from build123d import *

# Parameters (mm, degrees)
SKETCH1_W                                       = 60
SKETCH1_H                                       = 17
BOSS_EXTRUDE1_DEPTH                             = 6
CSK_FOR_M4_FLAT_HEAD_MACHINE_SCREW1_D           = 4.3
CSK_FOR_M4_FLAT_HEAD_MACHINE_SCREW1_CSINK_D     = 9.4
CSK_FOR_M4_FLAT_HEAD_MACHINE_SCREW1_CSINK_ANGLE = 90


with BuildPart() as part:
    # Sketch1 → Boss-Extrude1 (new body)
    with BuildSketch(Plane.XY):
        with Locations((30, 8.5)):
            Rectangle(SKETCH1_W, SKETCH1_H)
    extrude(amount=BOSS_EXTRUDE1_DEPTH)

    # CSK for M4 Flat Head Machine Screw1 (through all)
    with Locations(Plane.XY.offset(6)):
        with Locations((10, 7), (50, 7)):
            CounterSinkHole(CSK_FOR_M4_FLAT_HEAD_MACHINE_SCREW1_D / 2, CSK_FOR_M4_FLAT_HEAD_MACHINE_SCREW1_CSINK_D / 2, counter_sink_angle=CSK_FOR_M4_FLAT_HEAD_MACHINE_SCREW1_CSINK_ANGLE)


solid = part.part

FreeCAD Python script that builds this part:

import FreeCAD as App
import Part
import Sketcher

V = App.Vector
Q = App.Units.Quantity

doc = App.newDocument("Part")
body = doc.addObject("PartDesign::Body", "Body")

# Sketch on XY plane
sketch1 = doc.addObject("Sketcher::SketchObject", "Sketch")
body.addObject(sketch1)
sketch1.AttachmentSupport = (doc.XY_Plane, [""])
sketch1.MapMode = "FlatFace"
sketch1.addGeometry(Part.LineSegment(V(0, 17, 0), V(0, 0, 0)), False)
sketch1.addGeometry(Part.LineSegment(V(0, 0, 0), V(60, 0, 0)), False)
sketch1.addGeometry(Part.LineSegment(V(60, 0, 0), V(60, 17, 0)), False)
sketch1.addGeometry(Part.LineSegment(V(60, 17, 0), V(0, 17, 0)), False)
sketch1.addConstraint(Sketcher.Constraint("Coincident", 0, 2, 1, 1))
sketch1.addConstraint(Sketcher.Constraint("Coincident", 1, 2, 2, 1))
sketch1.addConstraint(Sketcher.Constraint("Coincident", 2, 2, 3, 1))
sketch1.addConstraint(Sketcher.Constraint("Coincident", 3, 2, 0, 1))
sketch1.addConstraint(Sketcher.Constraint("Vertical", 0))
sketch1.addConstraint(Sketcher.Constraint("Horizontal", 1))
sketch1.addConstraint(Sketcher.Constraint("Vertical", 2))
sketch1.addConstraint(Sketcher.Constraint("Horizontal", 3))
sketch1.addConstraint(Sketcher.Constraint("Coincident", 0, 2, -1, 1))
sketch1.addConstraint(Sketcher.Constraint("DistanceX", 1, 1, 1, 2, Q("60 mm")))
sketch1.addConstraint(Sketcher.Constraint("DistanceY", 0, 2, 0, 1, Q("17 mm")))
pad1 = doc.addObject("PartDesign::Pad", "Pad")
body.addObject(pad1)
pad1.Profile = sketch1
pad1.Length = 6

# Sketch on XY plane
sketch2 = doc.addObject("Sketcher::SketchObject", "Sketch001")
body.addObject(sketch2)
sketch2.AttachmentSupport = (doc.XY_Plane, [""])
sketch2.MapMode = "FlatFace"
sketch2.AttachmentOffset = App.Placement(V(0, 0, 6), App.Rotation())
sketch2.addGeometry(Part.Circle(V(10, 7, 0), V(0, 0, 1), 2.1), False)
sketch2.addGeometry(Part.Circle(V(50, 7, 0), V(0, 0, 1), 2.1), False)
sketch2.addConstraint(Sketcher.Constraint("Equal", 0, 1))
sketch2.addConstraint(Sketcher.Constraint("Horizontal", 0, 3, 1, 3))
sketch2.addConstraint(Sketcher.Constraint("Diameter", 0, Q("4.3 mm")))
sketch2.addConstraint(Sketcher.Constraint("DistanceX", -1, 1, 0, 3, Q("10 mm")))
sketch2.addConstraint(Sketcher.Constraint("DistanceY", -1, 1, 0, 3, Q("7 mm")))
sketch2.addConstraint(Sketcher.Constraint("DistanceX", -1, 1, 1, 3, Q("50 mm")))
doc.recompute()
hole = doc.addObject("PartDesign::Hole", "Hole")
body.addObject(hole)
hole.Profile = sketch2
hole.ThreadType = "None"
hole.Diameter = 4.3
hole.DepthType = "ThroughAll"
hole.HoleCutType = "Countersink"
hole.HoleCutDiameter = 9.4
hole.HoleCutCountersinkAngle = 90

doc.recompute()
